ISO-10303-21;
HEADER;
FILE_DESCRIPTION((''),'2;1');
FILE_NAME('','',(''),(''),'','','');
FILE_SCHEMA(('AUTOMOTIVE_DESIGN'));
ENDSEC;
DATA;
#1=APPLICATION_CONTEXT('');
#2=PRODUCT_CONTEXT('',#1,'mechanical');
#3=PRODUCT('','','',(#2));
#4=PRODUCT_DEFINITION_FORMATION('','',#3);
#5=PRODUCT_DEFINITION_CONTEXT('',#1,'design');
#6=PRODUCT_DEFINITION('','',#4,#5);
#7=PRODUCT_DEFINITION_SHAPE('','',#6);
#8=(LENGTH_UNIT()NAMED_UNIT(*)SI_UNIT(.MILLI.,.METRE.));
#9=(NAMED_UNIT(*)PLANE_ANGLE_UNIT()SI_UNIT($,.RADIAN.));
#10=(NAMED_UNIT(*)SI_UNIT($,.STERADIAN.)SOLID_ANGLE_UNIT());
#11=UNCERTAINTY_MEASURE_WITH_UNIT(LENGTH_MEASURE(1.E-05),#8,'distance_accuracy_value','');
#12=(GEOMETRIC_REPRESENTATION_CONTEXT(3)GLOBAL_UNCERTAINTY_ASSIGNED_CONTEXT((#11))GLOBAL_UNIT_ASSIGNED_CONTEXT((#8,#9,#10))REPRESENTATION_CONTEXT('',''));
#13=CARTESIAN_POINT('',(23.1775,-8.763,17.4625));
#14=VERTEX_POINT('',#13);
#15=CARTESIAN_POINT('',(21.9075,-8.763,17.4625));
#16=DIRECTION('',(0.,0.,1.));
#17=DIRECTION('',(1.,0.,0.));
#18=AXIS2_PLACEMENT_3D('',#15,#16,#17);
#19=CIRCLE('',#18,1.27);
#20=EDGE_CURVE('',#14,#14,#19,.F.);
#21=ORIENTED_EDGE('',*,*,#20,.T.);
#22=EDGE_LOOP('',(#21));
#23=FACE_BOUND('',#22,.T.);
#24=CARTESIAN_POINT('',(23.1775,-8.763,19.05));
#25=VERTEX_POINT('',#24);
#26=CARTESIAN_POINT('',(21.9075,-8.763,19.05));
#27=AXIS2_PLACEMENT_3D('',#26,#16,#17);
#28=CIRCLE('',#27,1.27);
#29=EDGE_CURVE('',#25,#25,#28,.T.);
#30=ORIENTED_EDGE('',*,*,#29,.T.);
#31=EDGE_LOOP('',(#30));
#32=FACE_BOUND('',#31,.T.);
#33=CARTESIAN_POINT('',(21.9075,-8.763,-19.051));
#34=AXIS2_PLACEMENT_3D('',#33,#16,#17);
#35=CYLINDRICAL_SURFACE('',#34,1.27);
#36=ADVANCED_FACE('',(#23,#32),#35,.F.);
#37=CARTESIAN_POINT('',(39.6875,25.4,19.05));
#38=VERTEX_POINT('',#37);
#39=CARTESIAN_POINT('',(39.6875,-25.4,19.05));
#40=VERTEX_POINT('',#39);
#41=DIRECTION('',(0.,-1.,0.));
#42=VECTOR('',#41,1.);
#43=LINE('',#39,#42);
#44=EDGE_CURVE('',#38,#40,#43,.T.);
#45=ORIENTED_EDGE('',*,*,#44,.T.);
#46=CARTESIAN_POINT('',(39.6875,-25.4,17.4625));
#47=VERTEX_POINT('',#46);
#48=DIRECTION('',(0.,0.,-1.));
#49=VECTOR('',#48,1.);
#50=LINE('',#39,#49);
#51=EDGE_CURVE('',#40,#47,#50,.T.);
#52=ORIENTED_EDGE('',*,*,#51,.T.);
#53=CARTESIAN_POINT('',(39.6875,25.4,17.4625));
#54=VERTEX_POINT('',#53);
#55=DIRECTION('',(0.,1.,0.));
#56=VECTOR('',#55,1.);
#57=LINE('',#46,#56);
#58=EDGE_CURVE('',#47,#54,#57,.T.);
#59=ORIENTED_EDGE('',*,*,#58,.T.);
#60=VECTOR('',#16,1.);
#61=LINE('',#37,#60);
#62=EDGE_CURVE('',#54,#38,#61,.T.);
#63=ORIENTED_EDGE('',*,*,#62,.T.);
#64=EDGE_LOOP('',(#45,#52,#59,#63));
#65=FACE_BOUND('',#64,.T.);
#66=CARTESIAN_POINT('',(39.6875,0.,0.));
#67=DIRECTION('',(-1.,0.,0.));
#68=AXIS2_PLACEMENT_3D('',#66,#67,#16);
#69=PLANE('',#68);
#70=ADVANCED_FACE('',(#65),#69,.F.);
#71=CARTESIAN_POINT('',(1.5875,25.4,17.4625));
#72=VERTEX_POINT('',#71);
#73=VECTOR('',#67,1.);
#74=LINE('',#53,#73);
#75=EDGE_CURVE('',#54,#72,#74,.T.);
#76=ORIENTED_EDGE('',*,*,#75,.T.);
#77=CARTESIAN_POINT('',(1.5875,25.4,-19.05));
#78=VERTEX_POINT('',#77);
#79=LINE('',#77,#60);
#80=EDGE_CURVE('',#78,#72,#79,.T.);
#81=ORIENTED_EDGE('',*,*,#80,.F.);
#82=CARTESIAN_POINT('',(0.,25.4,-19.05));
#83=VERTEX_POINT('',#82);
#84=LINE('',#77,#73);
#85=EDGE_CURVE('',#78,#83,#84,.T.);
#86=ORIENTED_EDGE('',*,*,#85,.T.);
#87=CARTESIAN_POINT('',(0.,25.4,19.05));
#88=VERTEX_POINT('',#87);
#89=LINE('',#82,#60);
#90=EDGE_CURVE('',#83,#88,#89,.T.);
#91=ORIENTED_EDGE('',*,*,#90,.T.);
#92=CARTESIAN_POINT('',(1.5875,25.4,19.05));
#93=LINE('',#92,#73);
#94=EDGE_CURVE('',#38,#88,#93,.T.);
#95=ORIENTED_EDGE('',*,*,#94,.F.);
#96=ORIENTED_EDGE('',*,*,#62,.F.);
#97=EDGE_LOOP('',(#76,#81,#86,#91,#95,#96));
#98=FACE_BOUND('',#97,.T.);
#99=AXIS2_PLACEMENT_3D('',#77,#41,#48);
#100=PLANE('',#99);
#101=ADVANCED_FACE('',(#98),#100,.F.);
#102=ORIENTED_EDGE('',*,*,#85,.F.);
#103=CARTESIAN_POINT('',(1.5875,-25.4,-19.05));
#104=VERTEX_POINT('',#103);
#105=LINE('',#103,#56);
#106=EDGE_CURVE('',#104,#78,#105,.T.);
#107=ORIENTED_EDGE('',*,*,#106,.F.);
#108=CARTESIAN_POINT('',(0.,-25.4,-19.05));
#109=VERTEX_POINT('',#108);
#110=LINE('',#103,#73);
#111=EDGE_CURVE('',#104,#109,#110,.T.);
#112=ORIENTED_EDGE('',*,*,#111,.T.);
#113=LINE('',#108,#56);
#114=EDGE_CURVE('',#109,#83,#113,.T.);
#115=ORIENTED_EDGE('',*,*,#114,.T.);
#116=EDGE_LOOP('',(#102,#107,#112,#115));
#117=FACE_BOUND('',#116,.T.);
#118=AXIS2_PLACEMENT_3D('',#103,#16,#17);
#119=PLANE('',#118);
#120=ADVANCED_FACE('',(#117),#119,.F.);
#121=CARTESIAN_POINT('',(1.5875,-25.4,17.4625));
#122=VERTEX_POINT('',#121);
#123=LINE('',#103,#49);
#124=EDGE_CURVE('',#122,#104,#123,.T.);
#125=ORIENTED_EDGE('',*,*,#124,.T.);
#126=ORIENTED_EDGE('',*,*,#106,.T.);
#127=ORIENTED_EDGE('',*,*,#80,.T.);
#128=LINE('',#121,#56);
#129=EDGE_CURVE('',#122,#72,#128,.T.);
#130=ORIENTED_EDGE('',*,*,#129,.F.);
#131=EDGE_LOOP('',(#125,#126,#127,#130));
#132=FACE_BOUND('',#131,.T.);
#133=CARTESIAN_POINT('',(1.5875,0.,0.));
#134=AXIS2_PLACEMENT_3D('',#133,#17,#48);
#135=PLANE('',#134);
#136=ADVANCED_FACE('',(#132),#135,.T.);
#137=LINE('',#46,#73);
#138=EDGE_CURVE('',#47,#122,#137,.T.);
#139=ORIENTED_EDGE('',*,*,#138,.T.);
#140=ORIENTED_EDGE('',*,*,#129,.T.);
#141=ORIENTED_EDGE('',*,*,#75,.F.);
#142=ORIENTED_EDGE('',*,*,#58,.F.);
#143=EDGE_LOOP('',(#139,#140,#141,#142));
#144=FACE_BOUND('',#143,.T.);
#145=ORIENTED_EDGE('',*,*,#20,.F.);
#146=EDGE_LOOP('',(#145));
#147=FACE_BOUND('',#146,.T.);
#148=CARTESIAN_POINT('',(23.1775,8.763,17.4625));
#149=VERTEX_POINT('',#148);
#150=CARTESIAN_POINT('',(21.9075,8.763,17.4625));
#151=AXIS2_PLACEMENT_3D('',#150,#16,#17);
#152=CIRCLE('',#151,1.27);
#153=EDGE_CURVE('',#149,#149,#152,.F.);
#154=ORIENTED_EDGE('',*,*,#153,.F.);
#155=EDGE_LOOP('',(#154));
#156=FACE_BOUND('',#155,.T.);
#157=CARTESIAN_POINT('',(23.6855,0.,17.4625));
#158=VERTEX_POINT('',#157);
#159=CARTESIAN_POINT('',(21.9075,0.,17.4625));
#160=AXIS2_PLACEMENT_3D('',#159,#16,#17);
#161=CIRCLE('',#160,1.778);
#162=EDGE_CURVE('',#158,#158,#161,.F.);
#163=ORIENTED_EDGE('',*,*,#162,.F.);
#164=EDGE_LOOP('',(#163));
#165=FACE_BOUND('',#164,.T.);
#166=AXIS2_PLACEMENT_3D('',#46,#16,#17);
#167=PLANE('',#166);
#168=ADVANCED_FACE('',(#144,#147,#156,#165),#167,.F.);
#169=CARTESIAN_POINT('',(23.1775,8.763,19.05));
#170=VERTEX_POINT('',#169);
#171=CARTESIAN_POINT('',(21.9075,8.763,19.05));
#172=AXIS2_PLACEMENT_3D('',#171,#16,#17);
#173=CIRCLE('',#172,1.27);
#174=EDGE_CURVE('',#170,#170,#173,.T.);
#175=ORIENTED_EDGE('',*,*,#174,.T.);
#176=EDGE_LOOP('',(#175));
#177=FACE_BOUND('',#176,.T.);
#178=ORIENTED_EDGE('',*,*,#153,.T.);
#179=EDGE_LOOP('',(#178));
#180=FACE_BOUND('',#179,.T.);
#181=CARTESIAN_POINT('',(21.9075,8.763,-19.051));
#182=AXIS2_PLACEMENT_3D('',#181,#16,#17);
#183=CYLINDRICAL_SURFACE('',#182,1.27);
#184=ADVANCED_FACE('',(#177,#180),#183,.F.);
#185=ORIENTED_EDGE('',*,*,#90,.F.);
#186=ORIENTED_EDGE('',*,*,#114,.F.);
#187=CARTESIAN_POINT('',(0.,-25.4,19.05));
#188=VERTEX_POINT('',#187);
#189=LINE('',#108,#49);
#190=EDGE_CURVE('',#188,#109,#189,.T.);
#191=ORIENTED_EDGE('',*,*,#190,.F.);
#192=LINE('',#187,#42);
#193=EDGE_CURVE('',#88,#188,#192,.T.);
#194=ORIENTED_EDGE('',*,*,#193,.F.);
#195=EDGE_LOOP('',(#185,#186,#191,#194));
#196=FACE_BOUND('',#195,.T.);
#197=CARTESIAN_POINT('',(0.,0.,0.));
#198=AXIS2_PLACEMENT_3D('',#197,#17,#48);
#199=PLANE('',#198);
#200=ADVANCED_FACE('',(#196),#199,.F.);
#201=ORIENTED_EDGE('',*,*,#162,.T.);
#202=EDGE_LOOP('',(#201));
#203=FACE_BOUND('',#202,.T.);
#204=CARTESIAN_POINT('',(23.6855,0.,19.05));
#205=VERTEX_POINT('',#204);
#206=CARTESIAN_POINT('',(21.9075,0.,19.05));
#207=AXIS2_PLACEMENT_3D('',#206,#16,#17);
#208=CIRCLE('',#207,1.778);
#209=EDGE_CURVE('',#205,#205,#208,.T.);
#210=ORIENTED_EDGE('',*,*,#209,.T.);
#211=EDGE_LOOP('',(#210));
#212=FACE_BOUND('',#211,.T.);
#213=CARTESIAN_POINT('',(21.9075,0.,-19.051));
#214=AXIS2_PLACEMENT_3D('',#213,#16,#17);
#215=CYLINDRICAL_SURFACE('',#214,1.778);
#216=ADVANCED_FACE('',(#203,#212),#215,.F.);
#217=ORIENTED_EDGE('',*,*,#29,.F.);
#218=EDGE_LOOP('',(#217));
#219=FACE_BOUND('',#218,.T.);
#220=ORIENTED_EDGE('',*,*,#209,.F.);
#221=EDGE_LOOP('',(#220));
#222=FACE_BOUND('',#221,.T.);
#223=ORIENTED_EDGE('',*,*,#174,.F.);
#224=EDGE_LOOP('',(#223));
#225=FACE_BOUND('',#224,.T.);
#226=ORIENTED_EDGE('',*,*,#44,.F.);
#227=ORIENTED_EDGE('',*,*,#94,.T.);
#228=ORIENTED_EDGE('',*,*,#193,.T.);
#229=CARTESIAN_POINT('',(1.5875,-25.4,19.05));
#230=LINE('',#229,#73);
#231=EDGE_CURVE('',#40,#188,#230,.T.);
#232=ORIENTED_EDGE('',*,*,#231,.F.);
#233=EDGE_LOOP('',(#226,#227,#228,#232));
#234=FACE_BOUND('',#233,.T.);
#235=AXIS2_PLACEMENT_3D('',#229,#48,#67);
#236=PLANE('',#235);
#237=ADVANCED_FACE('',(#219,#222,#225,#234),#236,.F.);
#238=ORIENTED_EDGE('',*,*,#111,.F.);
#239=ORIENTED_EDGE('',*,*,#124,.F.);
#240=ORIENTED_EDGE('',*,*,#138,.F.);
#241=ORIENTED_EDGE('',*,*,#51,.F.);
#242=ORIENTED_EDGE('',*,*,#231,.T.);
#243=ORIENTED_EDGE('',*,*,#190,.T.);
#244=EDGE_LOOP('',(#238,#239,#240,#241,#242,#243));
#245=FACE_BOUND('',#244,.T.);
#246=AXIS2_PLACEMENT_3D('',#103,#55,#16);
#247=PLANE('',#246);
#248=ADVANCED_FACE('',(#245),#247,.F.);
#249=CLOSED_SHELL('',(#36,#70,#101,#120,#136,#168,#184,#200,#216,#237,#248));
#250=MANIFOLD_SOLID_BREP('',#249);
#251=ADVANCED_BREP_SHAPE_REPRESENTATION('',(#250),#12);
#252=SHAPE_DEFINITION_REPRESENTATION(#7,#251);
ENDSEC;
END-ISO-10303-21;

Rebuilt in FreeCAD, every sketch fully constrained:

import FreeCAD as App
import Part
import Sketcher
Q = App.Units.Quantity


def add_polygon(sketch, points):
    """Adds a closed chain of lines whose ends are joined by coincident constraints."""
    first, n = sketch.GeometryCount, len(points)
    for a, b in zip(points, points[1:] + points[:1]):
        sketch.addGeometry(Part.LineSegment(App.Vector(*a, 0), App.Vector(*b, 0)), False)
    for i in range(n):
        sketch.addConstraint(Sketcher.Constraint("Coincident", first + i, 2, first + (i + 1) % n, 1))

doc = App.newDocument("Part")
params = doc.addObject("Spreadsheet::Sheet", "Params")
for row, (alias, value) in enumerate([
    ("sketch1_width", "2 in"),
    ("sketch1_height", "1.5 in"),
    ("pad1_length", "0.0625 in"),
    ("sketch2_width", "2 in"),
    ("sketch2_height", "0.0625 in"),
    ("pad2_length", "1.5 in"),
    ("sketch3_diameter", "0.14 in"),
    ("sketch4_diameter", "0.1 in"),
    ("sketch5_diameter", "0.1 in"),
], start=1):
    params.set(f"A{row}", alias)
    params.set(f"B{row}", "=" + value)
    params.setAlias(f"B{row}", alias)

body = doc.addObject("PartDesign::Body", "Body")

# Sketch on YZ plane
sketch1 = body.newObject("Sketcher::SketchObject", "Sketch")
sketch1.AttachmentSupport = (doc.getObject("YZ_Plane"), [""])
sketch1.MapMode = "FlatFace"
add_polygon(sketch1, [(25.4, 19.05), (-25.4, 19.05), (-25.4, -19.05), (25.4, -19.05)])  # lines 0-3
sketch1.addConstraint([
    Sketcher.Constraint("Horizontal", 0),
    Sketcher.Constraint("Vertical", 1),
    Sketcher.Constraint("Horizontal", 2),
    Sketcher.Constraint("Vertical", 3),
    Sketcher.Constraint("Symmetric", 0, 2, 2, 2, -1, 1),
    Sketcher.Constraint("DistanceX", 0, 2, 0, 1, Q("2 in")),
    Sketcher.Constraint("DistanceY", 1, 2, 1, 1, Q("1.5 in")),
])
sketch1.setExpression("Constraints[9]", "Params.sketch1_width")
sketch1.setExpression("Constraints[10]", "Params.sketch1_height")
pad1 = body.newObject("PartDesign::Pad", "Pad")
pad1.Profile = sketch1
pad1.setExpression("Length", "Params.pad1_length")

# Sketch on YZ plane
sketch2 = body.newObject("Sketcher::SketchObject", "Sketch001")
sketch2.AttachmentSupport = (doc.getObject("YZ_Plane"), [""])
sketch2.MapMode = "FlatFace"
sketch2.AttachmentOffset = App.Placement(App.Vector(0, 0, 0.0625 * 25.4), App.Rotation())
add_polygon(sketch2, [(25.4, 19.05), (-25.4, 19.05), (-25.4, 17.4625), (25.4, 17.4625)])  # lines 0-3
sketch2.addConstraint([
    Sketcher.Constraint("Horizontal", 0),
    Sketcher.Constraint("Vertical", 1),
    Sketcher.Constraint("Horizontal", 2),
    Sketcher.Constraint("Vertical", 3),
    Sketcher.Constraint("DistanceX", 0, 2, 0, 1, Q("2 in")),
    Sketcher.Constraint("DistanceX", 0, 2, -1, 1, Q("1 in")),
    Sketcher.Constraint("DistanceY", 1, 2, 1, 1, Q("0.0625 in")),
    Sketcher.Constraint("DistanceY", -1, 1, 0, 2, Q("0.75 in")),
])
sketch2.setExpression("Constraints[8]", "Params.sketch2_width")
sketch2.setExpression("Constraints[10]", "Params.sketch2_height")
pad2 = body.newObject("PartDesign::Pad", "Pad001")
pad2.Profile = sketch2
pad2.setExpression("Length", "Params.pad2_length")

# Sketch on XY plane
sketch3 = body.newObject("Sketcher::SketchObject", "Sketch002")
sketch3.AttachmentSupport = (doc.getObject("XY_Plane"), [""])
sketch3.MapMode = "FlatFace"
sketch3.AttachmentOffset = App.Placement(App.Vector(0, 0, 0.75 * 25.4), App.Rotation())
sketch3.addGeometry(Part.Circle(App.Vector(21.9075, 0, 0), App.Vector(0, 0, 1), 1.778), False)
sketch3.addConstraint([
    Sketcher.Constraint("PointOnObject", 0, 3, -1),
    Sketcher.Constraint("Diameter", 0, Q("0.14 in")),
    Sketcher.Constraint("DistanceX", -1, 1, 0, 3, Q("0.8625 in")),
])
sketch3.setExpression("Constraints[1]", "Params.sketch3_diameter")
pocket1 = body.newObject("PartDesign::Pocket", "Pocket")
pocket1.Profile = sketch3
pocket1.Type = "UpToFirst"

# Sketch on XY plane
sketch4 = body.newObject("Sketcher::SketchObject", "Sketch003")
sketch4.AttachmentSupport = (doc.getObject("XY_Plane"), [""])
sketch4.MapMode = "FlatFace"
sketch4.AttachmentOffset = App.Placement(App.Vector(0, 0, 0.75 * 25.4), App.Rotation())
sketch4.addGeometry(Part.Circle(App.Vector(21.9075, 8.763, 0), App.Vector(0, 0, 1), 1.27), False)
sketch4.addConstraint([
    Sketcher.Constraint("Diameter", 0, Q("0.1 in")),
    Sketcher.Constraint("DistanceY", -1, 1, 0, 3, Q("0.345 in")),
    Sketcher.Constraint("DistanceX", -1, 1, 0, 3, Q("0.8625 in")),
])
sketch4.setExpression("Constraints[0]", "Params.sketch4_diameter")
pocket2 = body.newObject("PartDesign::Pocket", "Pocket001")
pocket2.Profile = sketch4
pocket2.Type = "UpToFirst"

# Sketch on XY plane
sketch5 = body.newObject("Sketcher::SketchObject", "Sketch004")
sketch5.AttachmentSupport = (doc.getObject("XY_Plane"), [""])
sketch5.MapMode = "FlatFace"
sketch5.AttachmentOffset = App.Placement(App.Vector(0, 0, 0.75 * 25.4), App.Rotation())
sketch5.addGeometry(Part.Circle(App.Vector(21.9075, -8.763, 0), App.Vector(0, 0, 1), 1.27), False)
sketch5.addConstraint([
    Sketcher.Constraint("Diameter", 0, Q("0.1 in")),
    Sketcher.Constraint("DistanceY", 0, 3, -1, 1, Q("0.345 in")),
    Sketcher.Constraint("DistanceX", -1, 1, 0, 3, Q("0.8625 in")),
])
sketch5.setExpression("Constraints[0]", "Params.sketch5_diameter")
pocket3 = body.newObject("PartDesign::Pocket", "Pocket002")
pocket3.Profile = sketch5
pocket3.Type = "UpToFirst"

doc.recompute()
